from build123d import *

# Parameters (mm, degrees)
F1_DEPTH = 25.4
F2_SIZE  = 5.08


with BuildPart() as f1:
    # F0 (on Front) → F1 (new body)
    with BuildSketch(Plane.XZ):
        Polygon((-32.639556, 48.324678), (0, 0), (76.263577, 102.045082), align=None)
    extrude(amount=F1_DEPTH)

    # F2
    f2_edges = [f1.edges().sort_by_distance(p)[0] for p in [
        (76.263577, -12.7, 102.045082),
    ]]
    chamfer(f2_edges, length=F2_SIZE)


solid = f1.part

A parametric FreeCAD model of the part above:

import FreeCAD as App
import Part
import Sketcher

V = App.Vector


def edges_at(feature, points):
    """Names of the edges that pass closest to the given points."""
    edges = feature.Shape.Edges
    near = lambda p: min(range(len(edges)), key=lambda i: edges[i].distToShape(Part.Vertex(*p))[0])
    return sorted({f"Edge{near(p) + 1}" for p in points})

doc = App.newDocument("Part")
params = doc.addObject("Spreadsheet::Sheet", "Params")
for row, (alias, value) in enumerate([
    ("pad1_length", "1 in"),
    ("chamfer_size", "0.2 in"),
], start=1):
    params.set(f"A{row}", alias)
    params.set(f"B{row}", "=" + value)
    params.setAlias(f"B{row}", alias)

body = doc.addObject("PartDesign::Body", "Body")

# Sketch on XZ plane
sketch1 = body.newObject("Sketcher::SketchObject", "Sketch")
sketch1.AttachmentSupport = (doc.getObject("XZ_Plane"), [""])
sketch1.MapMode = "FlatFace"
sketch1.addGeometry([
    Part.LineSegment(V(-33, 48, 0), V(0, 0, 0)),
    Part.LineSegment(V(0, 0, 0), V(76, 102, 0)),
    Part.LineSegment(V(76, 102, 0), V(-33, 48, 0)),
], False)
sketch1.addConstraint([
    Sketcher.Constraint("Coincident", 0, 2, 1, 1),
    Sketcher.Constraint("Coincident", 1, 2, 2, 1),
    Sketcher.Constraint("Coincident", 2, 2, 0, 1),
    Sketcher.Constraint("Coincident", 0, 2, -1, 1),
    Sketcher.Constraint("Distance", 2, 121.432179),
    Sketcher.Constraint("DistanceY", -1, 1, 1, 2, 102.045082),
    Sketcher.Constraint("Distance", 0, 58.314793),
    Sketcher.Constraint("Distance", 1, 127.394395),
])
pad1 = body.newObject("PartDesign::Pad", "Pad")
pad1.Profile = sketch1
pad1.setExpression("Length", "Params.pad1_length")
doc.recompute()

chamfer = body.newObject("PartDesign::Chamfer", "Chamfer")
chamfer.Base = (pad1, edges_at(pad1, [(76.264, -12.7, 102.045)]))
chamfer.setExpression("Size", "Params.chamfer_size")

doc.recompute()
